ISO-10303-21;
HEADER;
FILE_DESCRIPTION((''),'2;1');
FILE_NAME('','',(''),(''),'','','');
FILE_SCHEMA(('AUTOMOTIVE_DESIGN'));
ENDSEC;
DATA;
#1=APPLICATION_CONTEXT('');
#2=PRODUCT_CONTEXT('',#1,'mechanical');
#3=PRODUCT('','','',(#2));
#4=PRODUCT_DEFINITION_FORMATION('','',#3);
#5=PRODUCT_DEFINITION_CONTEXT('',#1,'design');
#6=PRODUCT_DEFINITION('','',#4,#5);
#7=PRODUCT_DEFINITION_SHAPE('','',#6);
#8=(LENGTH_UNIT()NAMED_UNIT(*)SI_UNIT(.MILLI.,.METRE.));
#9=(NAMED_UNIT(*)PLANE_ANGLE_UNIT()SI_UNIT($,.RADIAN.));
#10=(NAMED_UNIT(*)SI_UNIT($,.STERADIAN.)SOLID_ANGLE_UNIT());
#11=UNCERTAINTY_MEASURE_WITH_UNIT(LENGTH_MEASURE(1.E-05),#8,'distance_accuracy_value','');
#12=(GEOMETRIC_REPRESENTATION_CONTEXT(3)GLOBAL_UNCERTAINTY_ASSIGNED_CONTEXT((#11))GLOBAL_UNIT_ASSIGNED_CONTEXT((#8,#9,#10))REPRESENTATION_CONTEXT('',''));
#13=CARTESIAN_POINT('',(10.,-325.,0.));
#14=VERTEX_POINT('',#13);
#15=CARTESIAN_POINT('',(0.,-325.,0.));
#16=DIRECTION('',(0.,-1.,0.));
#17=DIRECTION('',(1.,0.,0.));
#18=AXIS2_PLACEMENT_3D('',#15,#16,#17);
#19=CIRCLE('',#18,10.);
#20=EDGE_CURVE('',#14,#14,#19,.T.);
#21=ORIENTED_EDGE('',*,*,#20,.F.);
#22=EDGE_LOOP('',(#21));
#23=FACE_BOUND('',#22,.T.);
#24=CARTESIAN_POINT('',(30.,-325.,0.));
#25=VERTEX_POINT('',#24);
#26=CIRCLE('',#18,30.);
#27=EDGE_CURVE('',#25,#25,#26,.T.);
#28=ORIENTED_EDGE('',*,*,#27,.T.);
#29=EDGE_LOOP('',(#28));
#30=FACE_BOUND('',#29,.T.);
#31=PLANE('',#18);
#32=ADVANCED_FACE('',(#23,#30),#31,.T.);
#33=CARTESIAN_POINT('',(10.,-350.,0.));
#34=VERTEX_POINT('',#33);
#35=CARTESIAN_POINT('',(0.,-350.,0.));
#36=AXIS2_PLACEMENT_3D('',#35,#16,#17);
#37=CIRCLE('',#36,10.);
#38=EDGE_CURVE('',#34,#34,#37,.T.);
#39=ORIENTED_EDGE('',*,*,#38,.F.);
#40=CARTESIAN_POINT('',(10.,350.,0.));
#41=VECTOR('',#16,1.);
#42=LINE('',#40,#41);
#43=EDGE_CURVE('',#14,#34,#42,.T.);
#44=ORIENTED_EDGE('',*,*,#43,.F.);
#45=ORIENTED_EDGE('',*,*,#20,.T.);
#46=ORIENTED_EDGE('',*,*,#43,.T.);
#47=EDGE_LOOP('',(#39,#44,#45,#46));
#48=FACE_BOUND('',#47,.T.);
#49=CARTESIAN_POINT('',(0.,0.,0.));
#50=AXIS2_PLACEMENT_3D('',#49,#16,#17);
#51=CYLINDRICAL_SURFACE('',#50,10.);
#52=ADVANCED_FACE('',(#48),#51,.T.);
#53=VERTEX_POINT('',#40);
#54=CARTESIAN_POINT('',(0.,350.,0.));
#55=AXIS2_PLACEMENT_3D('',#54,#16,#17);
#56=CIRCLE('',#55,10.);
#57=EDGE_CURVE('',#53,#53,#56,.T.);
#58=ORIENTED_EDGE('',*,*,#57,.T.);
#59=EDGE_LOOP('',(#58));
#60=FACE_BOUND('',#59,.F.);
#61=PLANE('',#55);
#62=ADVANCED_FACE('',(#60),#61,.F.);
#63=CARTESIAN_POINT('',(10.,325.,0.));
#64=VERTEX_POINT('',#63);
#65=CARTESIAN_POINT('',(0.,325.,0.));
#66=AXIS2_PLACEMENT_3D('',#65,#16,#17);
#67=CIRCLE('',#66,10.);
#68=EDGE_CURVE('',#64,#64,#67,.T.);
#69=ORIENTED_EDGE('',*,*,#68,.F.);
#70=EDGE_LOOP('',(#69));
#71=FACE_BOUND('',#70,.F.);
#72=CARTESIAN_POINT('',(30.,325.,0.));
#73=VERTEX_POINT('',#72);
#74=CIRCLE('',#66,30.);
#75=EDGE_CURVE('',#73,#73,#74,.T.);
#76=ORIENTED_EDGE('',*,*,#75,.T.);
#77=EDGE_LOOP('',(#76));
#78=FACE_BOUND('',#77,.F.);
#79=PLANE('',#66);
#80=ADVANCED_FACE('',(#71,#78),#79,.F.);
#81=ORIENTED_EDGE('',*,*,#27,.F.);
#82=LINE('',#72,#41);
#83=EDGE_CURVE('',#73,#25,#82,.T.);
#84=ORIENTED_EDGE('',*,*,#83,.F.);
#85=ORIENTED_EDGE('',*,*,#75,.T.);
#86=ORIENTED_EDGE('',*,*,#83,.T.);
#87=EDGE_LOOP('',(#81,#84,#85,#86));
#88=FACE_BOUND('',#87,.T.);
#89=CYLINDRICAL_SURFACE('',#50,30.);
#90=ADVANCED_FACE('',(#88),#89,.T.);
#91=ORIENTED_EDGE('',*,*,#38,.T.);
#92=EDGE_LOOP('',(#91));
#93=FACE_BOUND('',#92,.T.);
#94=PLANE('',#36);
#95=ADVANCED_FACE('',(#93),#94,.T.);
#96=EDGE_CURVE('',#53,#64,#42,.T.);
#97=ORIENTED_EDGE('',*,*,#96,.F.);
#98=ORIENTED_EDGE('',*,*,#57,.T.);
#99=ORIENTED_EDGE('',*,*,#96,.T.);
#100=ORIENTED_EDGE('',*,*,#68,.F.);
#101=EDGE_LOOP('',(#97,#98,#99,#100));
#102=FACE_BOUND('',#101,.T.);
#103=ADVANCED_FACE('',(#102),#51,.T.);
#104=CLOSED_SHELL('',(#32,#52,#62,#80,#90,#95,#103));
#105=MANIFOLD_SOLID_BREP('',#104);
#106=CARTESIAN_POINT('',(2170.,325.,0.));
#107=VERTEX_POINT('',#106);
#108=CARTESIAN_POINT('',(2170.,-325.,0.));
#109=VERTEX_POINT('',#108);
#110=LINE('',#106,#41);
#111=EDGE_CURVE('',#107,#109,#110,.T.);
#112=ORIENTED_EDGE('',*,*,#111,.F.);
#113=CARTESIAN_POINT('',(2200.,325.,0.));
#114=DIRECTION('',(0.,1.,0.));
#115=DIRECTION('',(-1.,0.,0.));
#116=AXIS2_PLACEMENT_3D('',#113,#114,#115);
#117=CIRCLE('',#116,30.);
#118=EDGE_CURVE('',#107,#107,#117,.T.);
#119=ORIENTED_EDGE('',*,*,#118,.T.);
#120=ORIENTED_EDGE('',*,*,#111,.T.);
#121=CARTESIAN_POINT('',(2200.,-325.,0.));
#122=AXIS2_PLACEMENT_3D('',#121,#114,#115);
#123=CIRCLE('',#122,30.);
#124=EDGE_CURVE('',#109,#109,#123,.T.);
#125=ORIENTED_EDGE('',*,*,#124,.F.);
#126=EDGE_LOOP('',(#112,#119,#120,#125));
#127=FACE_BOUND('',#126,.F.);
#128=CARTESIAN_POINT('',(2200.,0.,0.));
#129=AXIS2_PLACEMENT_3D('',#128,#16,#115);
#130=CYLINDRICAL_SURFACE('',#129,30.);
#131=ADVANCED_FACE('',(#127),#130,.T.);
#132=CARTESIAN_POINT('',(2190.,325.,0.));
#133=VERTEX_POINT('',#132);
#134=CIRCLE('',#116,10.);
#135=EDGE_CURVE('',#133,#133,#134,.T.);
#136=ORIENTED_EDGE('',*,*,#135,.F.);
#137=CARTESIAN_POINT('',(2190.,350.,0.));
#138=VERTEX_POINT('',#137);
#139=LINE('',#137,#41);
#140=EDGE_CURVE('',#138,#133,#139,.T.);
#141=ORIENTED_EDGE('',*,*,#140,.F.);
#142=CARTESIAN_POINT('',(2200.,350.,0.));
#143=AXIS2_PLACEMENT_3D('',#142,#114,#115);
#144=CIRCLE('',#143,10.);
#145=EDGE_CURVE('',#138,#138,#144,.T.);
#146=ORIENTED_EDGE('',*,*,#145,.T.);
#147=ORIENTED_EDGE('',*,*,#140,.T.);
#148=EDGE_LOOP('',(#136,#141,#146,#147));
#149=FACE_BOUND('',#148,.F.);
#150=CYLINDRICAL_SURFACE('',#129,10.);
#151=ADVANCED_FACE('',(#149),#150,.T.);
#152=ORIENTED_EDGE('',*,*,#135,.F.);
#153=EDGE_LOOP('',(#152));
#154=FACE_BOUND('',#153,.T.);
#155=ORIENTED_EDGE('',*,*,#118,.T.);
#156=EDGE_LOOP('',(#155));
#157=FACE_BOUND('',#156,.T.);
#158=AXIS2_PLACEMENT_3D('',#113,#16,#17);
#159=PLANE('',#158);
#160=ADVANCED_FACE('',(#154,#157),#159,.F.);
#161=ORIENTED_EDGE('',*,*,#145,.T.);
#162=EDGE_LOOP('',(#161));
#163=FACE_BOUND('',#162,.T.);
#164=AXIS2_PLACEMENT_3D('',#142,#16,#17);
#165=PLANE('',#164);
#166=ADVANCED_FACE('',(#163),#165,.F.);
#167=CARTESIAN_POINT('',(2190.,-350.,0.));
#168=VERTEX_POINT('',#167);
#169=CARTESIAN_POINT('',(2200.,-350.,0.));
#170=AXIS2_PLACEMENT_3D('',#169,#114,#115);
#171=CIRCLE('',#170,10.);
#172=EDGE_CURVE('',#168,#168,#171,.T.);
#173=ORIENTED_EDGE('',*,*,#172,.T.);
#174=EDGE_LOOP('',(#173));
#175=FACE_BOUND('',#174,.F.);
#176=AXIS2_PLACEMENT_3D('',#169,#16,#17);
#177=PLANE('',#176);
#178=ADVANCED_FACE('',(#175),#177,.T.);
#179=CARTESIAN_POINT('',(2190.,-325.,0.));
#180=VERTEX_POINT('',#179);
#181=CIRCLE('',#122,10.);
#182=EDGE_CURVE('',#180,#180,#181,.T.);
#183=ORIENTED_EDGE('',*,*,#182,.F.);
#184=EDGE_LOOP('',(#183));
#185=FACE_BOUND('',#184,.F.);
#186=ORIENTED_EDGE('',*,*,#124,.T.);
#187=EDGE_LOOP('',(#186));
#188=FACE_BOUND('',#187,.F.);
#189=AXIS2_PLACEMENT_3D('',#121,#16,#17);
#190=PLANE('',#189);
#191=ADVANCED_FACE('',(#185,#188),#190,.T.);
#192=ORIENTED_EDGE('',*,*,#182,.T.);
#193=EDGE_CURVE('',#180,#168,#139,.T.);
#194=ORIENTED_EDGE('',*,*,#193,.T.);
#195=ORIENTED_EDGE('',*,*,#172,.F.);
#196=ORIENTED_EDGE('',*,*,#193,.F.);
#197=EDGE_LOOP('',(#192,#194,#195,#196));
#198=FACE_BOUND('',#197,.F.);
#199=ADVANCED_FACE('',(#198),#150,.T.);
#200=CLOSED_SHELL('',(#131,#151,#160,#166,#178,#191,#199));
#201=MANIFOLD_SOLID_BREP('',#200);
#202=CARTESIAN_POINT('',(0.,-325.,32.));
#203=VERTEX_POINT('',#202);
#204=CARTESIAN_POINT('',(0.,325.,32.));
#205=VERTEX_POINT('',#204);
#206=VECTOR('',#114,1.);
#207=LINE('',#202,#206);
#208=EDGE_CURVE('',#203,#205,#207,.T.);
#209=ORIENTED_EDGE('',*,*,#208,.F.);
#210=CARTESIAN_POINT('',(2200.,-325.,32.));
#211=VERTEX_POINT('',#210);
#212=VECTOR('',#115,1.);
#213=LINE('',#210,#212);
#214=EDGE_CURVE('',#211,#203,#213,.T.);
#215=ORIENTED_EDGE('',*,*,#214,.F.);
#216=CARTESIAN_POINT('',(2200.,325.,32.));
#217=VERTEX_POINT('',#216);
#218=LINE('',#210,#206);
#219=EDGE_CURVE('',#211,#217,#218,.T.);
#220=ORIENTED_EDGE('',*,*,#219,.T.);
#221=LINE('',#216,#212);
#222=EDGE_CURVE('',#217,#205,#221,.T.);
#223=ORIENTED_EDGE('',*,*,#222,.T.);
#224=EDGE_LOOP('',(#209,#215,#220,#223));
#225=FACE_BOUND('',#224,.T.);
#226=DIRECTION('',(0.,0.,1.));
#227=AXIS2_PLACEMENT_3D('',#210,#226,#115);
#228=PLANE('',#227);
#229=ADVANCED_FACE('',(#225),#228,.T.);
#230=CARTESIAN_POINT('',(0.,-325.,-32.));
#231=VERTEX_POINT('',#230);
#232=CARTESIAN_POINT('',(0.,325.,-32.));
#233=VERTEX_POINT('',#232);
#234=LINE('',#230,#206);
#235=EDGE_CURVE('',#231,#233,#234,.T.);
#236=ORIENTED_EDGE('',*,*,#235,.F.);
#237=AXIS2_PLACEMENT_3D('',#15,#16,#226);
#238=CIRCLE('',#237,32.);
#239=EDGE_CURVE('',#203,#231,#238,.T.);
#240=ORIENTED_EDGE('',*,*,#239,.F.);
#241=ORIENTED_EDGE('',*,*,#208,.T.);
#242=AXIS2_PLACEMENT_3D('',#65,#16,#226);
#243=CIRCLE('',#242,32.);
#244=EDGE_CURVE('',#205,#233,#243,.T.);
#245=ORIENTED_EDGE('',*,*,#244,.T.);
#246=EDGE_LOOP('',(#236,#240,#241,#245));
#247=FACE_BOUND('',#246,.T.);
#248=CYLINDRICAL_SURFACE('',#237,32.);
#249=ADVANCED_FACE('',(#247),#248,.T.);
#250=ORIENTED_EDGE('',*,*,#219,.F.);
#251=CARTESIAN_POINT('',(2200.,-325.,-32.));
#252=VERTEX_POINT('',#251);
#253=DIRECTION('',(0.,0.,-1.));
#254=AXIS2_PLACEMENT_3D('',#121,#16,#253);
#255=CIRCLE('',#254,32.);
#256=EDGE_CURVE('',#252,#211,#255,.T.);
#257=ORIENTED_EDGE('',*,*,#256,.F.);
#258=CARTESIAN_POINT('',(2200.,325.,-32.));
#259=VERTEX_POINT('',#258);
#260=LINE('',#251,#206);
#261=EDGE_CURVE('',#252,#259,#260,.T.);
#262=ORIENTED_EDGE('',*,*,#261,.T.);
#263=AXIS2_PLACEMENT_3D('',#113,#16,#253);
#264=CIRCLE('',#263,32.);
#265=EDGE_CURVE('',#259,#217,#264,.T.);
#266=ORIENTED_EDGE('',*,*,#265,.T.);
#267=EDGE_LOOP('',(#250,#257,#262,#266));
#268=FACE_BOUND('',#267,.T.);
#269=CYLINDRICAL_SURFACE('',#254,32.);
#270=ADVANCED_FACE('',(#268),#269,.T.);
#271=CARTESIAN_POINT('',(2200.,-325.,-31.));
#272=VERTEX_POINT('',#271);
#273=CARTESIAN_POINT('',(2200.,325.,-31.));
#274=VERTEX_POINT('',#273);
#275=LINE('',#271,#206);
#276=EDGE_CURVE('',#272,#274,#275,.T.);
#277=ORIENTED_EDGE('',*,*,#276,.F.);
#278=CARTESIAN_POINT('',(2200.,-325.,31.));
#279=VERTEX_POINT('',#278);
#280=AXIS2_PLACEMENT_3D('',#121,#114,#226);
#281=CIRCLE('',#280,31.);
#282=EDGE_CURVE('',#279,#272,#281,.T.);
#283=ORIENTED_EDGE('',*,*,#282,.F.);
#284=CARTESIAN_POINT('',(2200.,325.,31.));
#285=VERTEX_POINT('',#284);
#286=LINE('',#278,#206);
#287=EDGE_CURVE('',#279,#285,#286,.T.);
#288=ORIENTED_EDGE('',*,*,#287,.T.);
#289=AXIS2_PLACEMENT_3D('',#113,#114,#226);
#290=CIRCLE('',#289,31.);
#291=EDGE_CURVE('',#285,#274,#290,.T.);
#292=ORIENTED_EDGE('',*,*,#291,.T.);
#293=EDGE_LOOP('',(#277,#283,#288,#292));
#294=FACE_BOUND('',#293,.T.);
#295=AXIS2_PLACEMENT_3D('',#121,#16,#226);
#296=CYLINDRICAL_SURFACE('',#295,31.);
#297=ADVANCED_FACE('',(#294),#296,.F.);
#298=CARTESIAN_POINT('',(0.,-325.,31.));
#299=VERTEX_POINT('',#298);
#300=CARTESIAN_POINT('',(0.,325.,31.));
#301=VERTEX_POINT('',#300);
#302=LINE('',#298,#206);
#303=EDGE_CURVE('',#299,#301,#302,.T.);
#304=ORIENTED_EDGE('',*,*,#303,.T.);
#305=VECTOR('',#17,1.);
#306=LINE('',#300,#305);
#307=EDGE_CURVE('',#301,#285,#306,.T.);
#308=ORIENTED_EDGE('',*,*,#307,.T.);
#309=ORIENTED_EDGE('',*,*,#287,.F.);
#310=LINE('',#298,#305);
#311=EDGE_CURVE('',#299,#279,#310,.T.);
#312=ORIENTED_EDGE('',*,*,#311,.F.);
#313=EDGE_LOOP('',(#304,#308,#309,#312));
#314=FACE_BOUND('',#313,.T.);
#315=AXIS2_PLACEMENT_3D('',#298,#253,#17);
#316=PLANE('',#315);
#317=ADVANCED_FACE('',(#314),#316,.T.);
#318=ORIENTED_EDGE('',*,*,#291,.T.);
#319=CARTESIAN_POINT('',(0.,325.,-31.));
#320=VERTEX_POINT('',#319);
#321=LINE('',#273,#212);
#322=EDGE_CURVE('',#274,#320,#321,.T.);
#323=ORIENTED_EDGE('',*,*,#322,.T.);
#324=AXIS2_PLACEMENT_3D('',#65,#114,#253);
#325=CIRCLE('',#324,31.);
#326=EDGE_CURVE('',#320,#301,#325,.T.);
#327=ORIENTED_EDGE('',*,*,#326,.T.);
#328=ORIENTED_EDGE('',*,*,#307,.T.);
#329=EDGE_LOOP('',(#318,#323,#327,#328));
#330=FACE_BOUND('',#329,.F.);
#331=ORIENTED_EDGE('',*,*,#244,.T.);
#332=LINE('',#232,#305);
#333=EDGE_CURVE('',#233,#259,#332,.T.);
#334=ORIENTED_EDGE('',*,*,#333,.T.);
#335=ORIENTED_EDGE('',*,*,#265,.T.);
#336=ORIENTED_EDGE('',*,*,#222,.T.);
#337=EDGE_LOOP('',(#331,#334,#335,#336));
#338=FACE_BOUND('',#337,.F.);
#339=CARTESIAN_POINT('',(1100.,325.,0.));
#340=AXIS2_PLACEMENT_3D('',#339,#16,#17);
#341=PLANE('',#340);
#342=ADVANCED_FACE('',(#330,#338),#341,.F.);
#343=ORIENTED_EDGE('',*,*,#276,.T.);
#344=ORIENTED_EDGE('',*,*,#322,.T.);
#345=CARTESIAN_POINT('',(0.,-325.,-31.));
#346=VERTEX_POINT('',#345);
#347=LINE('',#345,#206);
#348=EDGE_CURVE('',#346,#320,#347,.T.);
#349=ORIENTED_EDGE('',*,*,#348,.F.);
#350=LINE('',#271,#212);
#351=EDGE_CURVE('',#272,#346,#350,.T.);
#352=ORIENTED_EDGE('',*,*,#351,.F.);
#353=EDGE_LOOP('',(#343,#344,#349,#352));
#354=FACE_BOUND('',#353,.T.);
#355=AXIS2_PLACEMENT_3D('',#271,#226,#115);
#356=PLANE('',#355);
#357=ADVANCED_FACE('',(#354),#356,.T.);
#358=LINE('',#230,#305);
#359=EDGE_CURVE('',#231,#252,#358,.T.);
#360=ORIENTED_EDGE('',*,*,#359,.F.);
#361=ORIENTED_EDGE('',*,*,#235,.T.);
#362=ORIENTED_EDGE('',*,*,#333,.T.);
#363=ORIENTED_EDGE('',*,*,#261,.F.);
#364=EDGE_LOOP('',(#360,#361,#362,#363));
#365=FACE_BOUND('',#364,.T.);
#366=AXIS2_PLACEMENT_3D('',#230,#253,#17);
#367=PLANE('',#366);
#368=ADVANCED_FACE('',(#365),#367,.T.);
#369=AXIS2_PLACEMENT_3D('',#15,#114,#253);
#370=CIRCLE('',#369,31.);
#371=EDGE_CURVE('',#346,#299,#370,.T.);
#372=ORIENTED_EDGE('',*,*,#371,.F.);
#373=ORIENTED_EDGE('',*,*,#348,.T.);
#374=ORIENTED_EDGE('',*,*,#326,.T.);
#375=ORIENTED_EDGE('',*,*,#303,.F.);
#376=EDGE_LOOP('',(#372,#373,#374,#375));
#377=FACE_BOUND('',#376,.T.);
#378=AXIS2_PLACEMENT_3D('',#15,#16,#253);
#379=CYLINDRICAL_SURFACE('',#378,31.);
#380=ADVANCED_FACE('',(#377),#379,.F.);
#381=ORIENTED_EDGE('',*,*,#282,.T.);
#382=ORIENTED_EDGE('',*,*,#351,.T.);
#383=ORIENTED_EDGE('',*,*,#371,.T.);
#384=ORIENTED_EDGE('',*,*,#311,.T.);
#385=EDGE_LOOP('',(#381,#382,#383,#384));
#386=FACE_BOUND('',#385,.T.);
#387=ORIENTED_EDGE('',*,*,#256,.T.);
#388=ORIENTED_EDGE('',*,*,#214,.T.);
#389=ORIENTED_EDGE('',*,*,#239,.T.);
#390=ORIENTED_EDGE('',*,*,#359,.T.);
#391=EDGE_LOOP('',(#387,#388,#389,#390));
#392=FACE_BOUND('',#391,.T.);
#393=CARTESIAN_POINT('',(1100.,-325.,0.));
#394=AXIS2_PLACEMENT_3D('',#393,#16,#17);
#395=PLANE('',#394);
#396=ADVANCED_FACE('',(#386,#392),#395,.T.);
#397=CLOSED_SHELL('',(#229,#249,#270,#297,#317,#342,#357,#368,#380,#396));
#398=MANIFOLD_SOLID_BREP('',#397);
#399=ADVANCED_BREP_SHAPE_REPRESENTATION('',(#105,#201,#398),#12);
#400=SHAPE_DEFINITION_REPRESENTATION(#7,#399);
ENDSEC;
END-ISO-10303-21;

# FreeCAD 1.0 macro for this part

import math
import FreeCAD as App
import Part
import Sketcher

doc = App.newDocument("Part")
body = doc.addObject("PartDesign::Body", "Body")

# Sketch on XZ plane
sketch1 = body.newObject("Sketcher::SketchObject", "Sketch")
sketch1.AttachmentSupport = (doc.getObject("XZ_Plane"), [""])
sketch1.MapMode = "FlatFace"
sketch1.addGeometry(Part.Circle(App.Vector(0, 0, 0), App.Vector(0, 0, 1), 10), False)
sketch1.addConstraint(Sketcher.Constraint("Coincident", 0, 3, -1, 1))
sketch1.addConstraint(Sketcher.Constraint("Diameter", 0, 20.0))
pad1 = body.newObject("PartDesign::Pad", "Pad")
pad1.Profile = sketch1
pad1.Length = 700
pad1.Midplane = True

# Sketch on XZ plane
sketch2 = body.newObject("Sketcher::SketchObject", "Sketch001")
sketch2.AttachmentSupport = (doc.getObject("XZ_Plane"), [""])
sketch2.MapMode = "FlatFace"
sketch2.addGeometry(Part.Circle(App.Vector(0, 0, 0), App.Vector(0, 0, 1), 30), False)
sketch2.addConstraint(Sketcher.Constraint("Coincident", 0, 3, -1, 1))
sketch2.addConstraint(Sketcher.Constraint("Diameter", 0, 60.0))
pad2 = body.newObject("PartDesign::Pad", "Pad001")
pad2.Profile = sketch2
pad2.Length = 650
pad2.Midplane = True
body2 = doc.addObject("PartDesign::Body", "Body001")
doc.recompute()

mirroring = doc.addObject("Part::Mirroring", "Mirroring")
mirroring.Source = body
mirroring.Base = App.Vector(1100, 0, 0)
mirroring.Normal = App.Vector(1, 0, 0)
body2.BaseFeature = mirroring
doc.recompute()
body3 = doc.addObject("PartDesign::Body", "Body002")

# Sketch on XZ plane
sketch3 = body3.newObject("Sketcher::SketchObject", "Sketch002")
sketch3.AttachmentSupport = (doc.getObject("XZ_Plane002"), [""])
sketch3.MapMode = "FlatFace"
sketch3.AttachmentOffset = App.Placement(App.Vector(0, 0, 325), App.Rotation())
sketch3.addGeometry(Part.LineSegment(App.Vector(2200, 32, 0), App.Vector(0, 32, 0)), False)
sketch3.addGeometry(Part.ArcOfCircle(Part.Circle(App.Vector(0, 0, 0), App.Vector(0, 0, 1), 32), math.radians(90), math.radians(270)), False)
sketch3.addGeometry(Part.LineSegment(App.Vector(0, -32, 0), App.Vector(2200, -32, 0)), False)
sketch3.addGeometry(Part.ArcOfCircle(Part.Circle(App.Vector(2200, 0, 0), App.Vector(0, 0, 1), 32), math.radians(-90), math.radians(90)), False)
sketch3.addGeometry(Part.LineSegment(App.Vector(2200, -31, 0), App.Vector(0, -31, 0)), False)
sketch3.addGeometry(Part.ArcOfCircle(Part.Circle(App.Vector(0, 0, 0), App.Vector(0, 0, 1), 31), math.radians(90), math.radians(270)), False)
sketch3.addGeometry(Part.LineSegment(App.Vector(0, 31, 0), App.Vector(2200, 31, 0)), False)
sketch3.addGeometry(Part.ArcOfCircle(Part.Circle(App.Vector(2200, 0, 0), App.Vector(0, 0, 1), 31), math.radians(-90), math.radians(90)), False)
sketch3.addConstraint(Sketcher.Constraint("Tangent", 0, 2, 1, 1))
sketch3.addConstraint(Sketcher.Constraint("Tangent", 1, 2, 2, 1))
sketch3.addConstraint(Sketcher.Constraint("Tangent", 2, 2, 3, 1))
sketch3.addConstraint(Sketcher.Constraint("Tangent", 3, 2, 0, 1))
sketch3.addConstraint(Sketcher.Constraint("Tangent", 4, 2, 5, 2))
sketch3.addConstraint(Sketcher.Constraint("Tangent", 5, 1, 6, 1))
sketch3.addConstraint(Sketcher.Constraint("Tangent", 6, 2, 7, 2))
sketch3.addConstraint(Sketcher.Constraint("Tangent", 7, 1, 4, 1))
sketch3.addConstraint(Sketcher.Constraint("Horizontal", 0))
sketch3.addConstraint(Sketcher.Constraint("Horizontal", 2))
sketch3.addConstraint(Sketcher.Constraint("Horizontal", 4))
sketch3.addConstraint(Sketcher.Constraint("Horizontal", 6))
sketch3.addConstraint(Sketcher.Constraint("Coincident", 1, 3, -1, 1))
sketch3.addConstraint(Sketcher.Constraint("Coincident", 5, 3, -1, 1))
sketch3.addConstraint(Sketcher.Constraint("Vertical", 7, 3, 2, 2))
sketch3.addConstraint(Sketcher.Constraint("Radius", 1, 32.0))
sketch3.addConstraint(Sketcher.Constraint("Radius", 5, 31.0))
sketch3.addConstraint(Sketcher.Constraint("DistanceX", 0, 2, 0, 1, 2200.0))
pad3 = body3.newObject("PartDesign::Pad", "Pad002")
pad3.Profile = sketch3
pad3.Length = 650
pad3.Reversed = True
mirroring.Visibility = False

doc.recompute()
